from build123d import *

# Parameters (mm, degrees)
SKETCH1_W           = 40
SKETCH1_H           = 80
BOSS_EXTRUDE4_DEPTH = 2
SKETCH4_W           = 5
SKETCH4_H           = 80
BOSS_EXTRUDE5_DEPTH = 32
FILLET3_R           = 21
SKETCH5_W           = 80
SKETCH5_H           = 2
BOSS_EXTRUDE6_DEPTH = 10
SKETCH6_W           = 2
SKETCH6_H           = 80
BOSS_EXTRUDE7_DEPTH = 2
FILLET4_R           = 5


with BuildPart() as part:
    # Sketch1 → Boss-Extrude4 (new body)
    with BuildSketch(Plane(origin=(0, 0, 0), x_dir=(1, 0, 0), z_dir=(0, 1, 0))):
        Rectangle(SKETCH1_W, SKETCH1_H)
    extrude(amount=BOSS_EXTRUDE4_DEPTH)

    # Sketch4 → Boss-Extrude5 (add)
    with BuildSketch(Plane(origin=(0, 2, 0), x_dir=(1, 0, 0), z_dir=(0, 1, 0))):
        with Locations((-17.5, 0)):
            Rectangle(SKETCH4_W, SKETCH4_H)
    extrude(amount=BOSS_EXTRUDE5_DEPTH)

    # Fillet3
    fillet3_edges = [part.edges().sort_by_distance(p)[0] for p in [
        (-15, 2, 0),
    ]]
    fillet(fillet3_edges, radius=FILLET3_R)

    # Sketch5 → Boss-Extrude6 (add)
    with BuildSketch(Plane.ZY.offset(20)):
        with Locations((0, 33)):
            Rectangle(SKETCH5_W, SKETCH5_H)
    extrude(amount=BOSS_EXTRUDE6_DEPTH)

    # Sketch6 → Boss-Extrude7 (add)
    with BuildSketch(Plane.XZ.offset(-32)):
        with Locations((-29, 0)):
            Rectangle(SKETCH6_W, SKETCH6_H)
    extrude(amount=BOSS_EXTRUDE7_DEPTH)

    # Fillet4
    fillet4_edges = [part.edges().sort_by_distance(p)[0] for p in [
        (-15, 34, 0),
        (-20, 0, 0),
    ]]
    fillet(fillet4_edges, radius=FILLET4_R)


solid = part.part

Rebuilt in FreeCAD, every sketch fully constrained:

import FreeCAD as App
import Part
import Sketcher


def edges_at(feature, points):
    """Names of the edges that pass closest to the given points."""
    edges = feature.Shape.Edges
    near = lambda p: min(range(len(edges)), key=lambda i: edges[i].distToShape(Part.Vertex(*p))[0])
    return sorted({f"Edge{near(p) + 1}" for p in points})

doc = App.newDocument("Part")
params = doc.addObject("Spreadsheet::Sheet", "Params")
for row, (alias, value) in enumerate([
    ("sketch1_width", "40 mm"),
    ("sketch1_height", "80 mm"),
    ("pad1_length", "2 mm"),
    ("sketch2_width", "5 mm"),
    ("sketch2_height", "80 mm"),
    ("pad2_length", "32 mm"),
    ("fillet_radius", "21 mm"),
    ("sketch3_width", "2 mm"),
    ("sketch3_height", "80 mm"),
    ("pad3_length", "10 mm"),
    ("sketch4_width", "2 mm"),
    ("sketch4_height", "80 mm"),
    ("pad4_length", "2 mm"),
    ("fillet2_radius", "5 mm"),
], start=1):
    params.set(f"A{row}", alias)
    params.set(f"B{row}", "=" + value)
    params.setAlias(f"B{row}", alias)

body = doc.addObject("PartDesign::Body", "Body")

# Sketch on XZ plane
sketch1 = doc.addObject("Sketcher::SketchObject", "Sketch")
body.addObject(sketch1)
sketch1.AttachmentSupport = (doc.XZ_Plane, [""])
sketch1.MapMode = "FlatFace"
sketch1.addGeometry([
    Part.LineSegment(App.Vector(-20, -40, 0), App.Vector(-20, 40, 0)),
    Part.LineSegment(App.Vector(-20, 40, 0), App.Vector(20, 40, 0)),
    Part.LineSegment(App.Vector(20, 40, 0), App.Vector(20, -40, 0)),
    Part.LineSegment(App.Vector(20, -40, 0), App.Vector(-20, -40, 0)),
], False)
sketch1.addConstraint([
    Sketcher.Constraint("Coincident", 0, 2, 1, 1),
    Sketcher.Constraint("Coincident", 1, 2, 2, 1),
    Sketcher.Constraint("Coincident", 2, 2, 3, 1),
    Sketcher.Constraint("Coincident", 3, 2, 0, 1),
    Sketcher.Constraint("Vertical", 0),
    Sketcher.Constraint("Horizontal", 1),
    Sketcher.Constraint("Vertical", 2),
    Sketcher.Constraint("Horizontal", 3),
    Sketcher.Constraint("Symmetric", 0, 2, 2, 2, -1, 1),
    Sketcher.Constraint("DistanceX", 1, 1, 1, 2, 40.0),
    Sketcher.Constraint("DistanceY", 0, 1, 0, 2, 80.0),
])
sketch1.setExpression("Constraints[9]", "Params.sketch1_width")
sketch1.setExpression("Constraints[10]", "Params.sketch1_height")
pad1 = doc.addObject("PartDesign::Pad", "Pad")
body.addObject(pad1)
pad1.Profile = sketch1
pad1.setExpression("Length", "Params.pad1_length")
pad1.Reversed = True

# Sketch on XZ plane
sketch2 = doc.addObject("Sketcher::SketchObject", "Sketch001")
body.addObject(sketch2)
sketch2.AttachmentSupport = (doc.XZ_Plane, [""])
sketch2.MapMode = "FlatFace"
sketch2.AttachmentOffset = App.Placement(App.Vector(0, 0, -2), App.Rotation())
sketch2.addGeometry([
    Part.LineSegment(App.Vector(-20, -40, 0), App.Vector(-20, 40, 0)),
    Part.LineSegment(App.Vector(-20, 40, 0), App.Vector(-15, 40, 0)),
    Part.LineSegment(App.Vector(-15, 40, 0), App.Vector(-15, -40, 0)),
    Part.LineSegment(App.Vector(-15, -40, 0), App.Vector(-20, -40, 0)),
], False)
sketch2.addConstraint([
    Sketcher.Constraint("Coincident", 0, 2, 1, 1),
    Sketcher.Constraint("Coincident", 1, 2, 2, 1),
    Sketcher.Constraint("Coincident", 2, 2, 3, 1),
    Sketcher.Constraint("Coincident", 3, 2, 0, 1),
    Sketcher.Constraint("Vertical", 0),
    Sketcher.Constraint("Horizontal", 1),
    Sketcher.Constraint("Vertical", 2),
    Sketcher.Constraint("Horizontal", 3),
    Sketcher.Constraint("DistanceX", 1, 1, 1, 2, 5.0),
    Sketcher.Constraint("DistanceY", 0, 1, 0, 2, 80.0),
    Sketcher.Constraint("DistanceX", 0, 2, -1, 1, 20.0),
    Sketcher.Constraint("DistanceY", -1, 1, 0, 2, 40.0),
])
sketch2.setExpression("Constraints[8]", "Params.sketch2_width")
sketch2.setExpression("Constraints[9]", "Params.sketch2_height")
pad2 = doc.addObject("PartDesign::Pad", "Pad001")
body.addObject(pad2)
pad2.Profile = sketch2
pad2.setExpression("Length", "Params.pad2_length")
pad2.Reversed = True
doc.recompute()

fillet = doc.addObject("PartDesign::Fillet", "Fillet")
body.addObject(fillet)
fillet.Base = (pad2, edges_at(pad2, [(-15, 2, 0)]))
fillet.setExpression("Radius", "Params.fillet_radius")

# Sketch on YZ plane
sketch3 = doc.addObject("Sketcher::SketchObject", "Sketch002")
body.addObject(sketch3)
sketch3.AttachmentSupport = (doc.YZ_Plane, [""])
sketch3.MapMode = "FlatFace"
sketch3.AttachmentOffset = App.Placement(App.Vector(0, 0, -20), App.Rotation())
sketch3.addGeometry([
    Part.LineSegment(App.Vector(34, -40, 0), App.Vector(32, -40, 0)),
    Part.LineSegment(App.Vector(32, -40, 0), App.Vector(32, 40, 0)),
    Part.LineSegment(App.Vector(32, 40, 0), App.Vector(34, 40, 0)),
    Part.LineSegment(App.Vector(34, 40, 0), App.Vector(34, -40, 0)),
], False)
sketch3.addConstraint([
    Sketcher.Constraint("Coincident", 0, 2, 1, 1),
    Sketcher.Constraint("Coincident", 1, 2, 2, 1),
    Sketcher.Constraint("Coincident", 2, 2, 3, 1),
    Sketcher.Constraint("Coincident", 3, 2, 0, 1),
    Sketcher.Constraint("Horizontal", 0),
    Sketcher.Constraint("Vertical", 1),
    Sketcher.Constraint("Horizontal", 2),
    Sketcher.Constraint("Vertical", 3),
    Sketcher.Constraint("DistanceX", 0, 2, 0, 1, 2.0),
    Sketcher.Constraint("DistanceY", 1, 1, 1, 2, 80.0),
    Sketcher.Constraint("DistanceX", -1, 1, 0, 2, 32.0),
    Sketcher.Constraint("DistanceY", 0, 2, -1, 1, 40.0),
])
sketch3.setExpression("Constraints[8]", "Params.sketch3_width")
sketch3.setExpression("Constraints[9]", "Params.sketch3_height")
pad3 = doc.addObject("PartDesign::Pad", "Pad002")
body.addObject(pad3)
pad3.Profile = sketch3
pad3.setExpression("Length", "Params.pad3_length")
pad3.Reversed = True

# Sketch on XZ plane
sketch4 = doc.addObject("Sketcher::SketchObject", "Sketch003")
body.addObject(sketch4)
sketch4.AttachmentSupport = (doc.XZ_Plane, [""])
sketch4.MapMode = "FlatFace"
sketch4.AttachmentOffset = App.Placement(App.Vector(0, 0, -32), App.Rotation())
sketch4.addGeometry([
    Part.LineSegment(App.Vector(-30, 40, 0), App.Vector(-30, -40, 0)),
    Part.LineSegment(App.Vector(-30, -40, 0), App.Vector(-28, -40, 0)),
    Part.LineSegment(App.Vector(-28, -40, 0), App.Vector(-28, 40, 0)),
    Part.LineSegment(App.Vector(-28, 40, 0), App.Vector(-30, 40, 0)),
], False)
sketch4.addConstraint([
    Sketcher.Constraint("Coincident", 0, 2, 1, 1),
    Sketcher.Constraint("Coincident", 1, 2, 2, 1),
    Sketcher.Constraint("Coincident", 2, 2, 3, 1),
    Sketcher.Constraint("Coincident", 3, 2, 0, 1),
    Sketcher.Constraint("Vertical", 0),
    Sketcher.Constraint("Horizontal", 1),
    Sketcher.Constraint("Vertical", 2),
    Sketcher.Constraint("Horizontal", 3),
    Sketcher.Constraint("DistanceX", 1, 1, 1, 2, 2.0),
    Sketcher.Constraint("DistanceY", 0, 2, 0, 1, 80.0),
    Sketcher.Constraint("DistanceX", 0, 2, -1, 1, 30.0),
    Sketcher.Constraint("DistanceY", 0, 2, -1, 1, 40.0),
])
sketch4.setExpression("Constraints[8]", "Params.sketch4_width")
sketch4.setExpression("Constraints[9]", "Params.sketch4_height")
pad4 = doc.addObject("PartDesign::Pad", "Pad003")
body.addObject(pad4)
pad4.Profile = sketch4
pad4.setExpression("Length", "Params.pad4_length")
doc.recompute()

fillet2 = doc.addObject("PartDesign::Fillet", "Fillet001")
body.addObject(fillet2)
fillet2.Base = (pad4, edges_at(pad4, [(-15, 34, 0), (-20, 0, 0)]))
fillet2.setExpression("Radius", "Params.fillet2_radius")

doc.recompute()
